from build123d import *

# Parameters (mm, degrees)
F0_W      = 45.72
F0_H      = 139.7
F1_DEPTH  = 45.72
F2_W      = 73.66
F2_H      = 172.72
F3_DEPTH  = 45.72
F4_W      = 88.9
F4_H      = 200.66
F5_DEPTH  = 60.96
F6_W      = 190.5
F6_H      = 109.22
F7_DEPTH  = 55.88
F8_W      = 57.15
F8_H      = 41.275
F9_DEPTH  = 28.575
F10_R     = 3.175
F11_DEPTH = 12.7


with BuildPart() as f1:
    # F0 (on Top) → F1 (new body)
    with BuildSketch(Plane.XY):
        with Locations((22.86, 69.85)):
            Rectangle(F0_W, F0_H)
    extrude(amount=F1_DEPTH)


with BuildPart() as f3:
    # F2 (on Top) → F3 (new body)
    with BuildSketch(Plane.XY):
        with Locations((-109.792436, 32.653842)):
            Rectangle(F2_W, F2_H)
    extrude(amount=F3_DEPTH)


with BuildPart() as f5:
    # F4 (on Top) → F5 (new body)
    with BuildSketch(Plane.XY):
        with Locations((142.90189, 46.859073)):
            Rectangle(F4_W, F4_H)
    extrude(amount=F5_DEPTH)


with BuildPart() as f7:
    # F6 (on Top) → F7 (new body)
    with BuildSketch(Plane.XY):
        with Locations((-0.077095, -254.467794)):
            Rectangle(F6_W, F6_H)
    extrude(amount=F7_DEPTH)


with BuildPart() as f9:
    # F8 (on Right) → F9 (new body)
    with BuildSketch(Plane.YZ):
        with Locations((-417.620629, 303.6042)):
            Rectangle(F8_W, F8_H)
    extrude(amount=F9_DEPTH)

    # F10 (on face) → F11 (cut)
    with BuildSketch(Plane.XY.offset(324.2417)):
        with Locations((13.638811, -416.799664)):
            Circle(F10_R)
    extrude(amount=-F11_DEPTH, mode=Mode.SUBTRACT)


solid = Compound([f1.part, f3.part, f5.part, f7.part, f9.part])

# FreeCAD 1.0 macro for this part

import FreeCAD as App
import Part
import Sketcher

V = App.Vector
Q = App.Units.Quantity


def add_polygon(sketch, points):
    """Adds a closed chain of lines whose ends are joined by coincident constraints."""
    first, n = sketch.GeometryCount, len(points)
    for a, b in zip(points, points[1:] + points[:1]):
        sketch.addGeometry(Part.LineSegment(App.Vector(*a, 0), App.Vector(*b, 0)), False)
    for i in range(n):
        sketch.addConstraint(Sketcher.Constraint("Coincident", first + i, 2, first + (i + 1) % n, 1))

doc = App.newDocument("Part")
body = doc.addObject("PartDesign::Body", "Body")

# Sketch on XY plane
sketch1 = body.newObject("Sketcher::SketchObject", "Sketch")
sketch1.AttachmentSupport = (doc.getObject("XY_Plane"), [""])
sketch1.MapMode = "FlatFace"
add_polygon(sketch1, [(0, 140), (0, 0), (46, 0), (46, 140)])  # lines 0-3
sketch1.addConstraint([
    Sketcher.Constraint("Vertical", 0),
    Sketcher.Constraint("Horizontal", 1),
    Sketcher.Constraint("Vertical", 2),
    Sketcher.Constraint("Horizontal", 3),
    Sketcher.Constraint("Coincident", 0, 2, -1, 1),
    Sketcher.Constraint("DistanceX", 1, 1, 1, 2, Q("1.8 in")),
    Sketcher.Constraint("DistanceY", 0, 2, 0, 1, Q("5.5 in")),
])
pad1 = body.newObject("PartDesign::Pad", "Pad")
pad1.Profile = sketch1
pad1.Length = Q("1.8 in")
body2 = doc.addObject("PartDesign::Body", "Body001")

# Sketch on XY plane
sketch2 = body2.newObject("Sketcher::SketchObject", "Sketch001")
sketch2.AttachmentSupport = (doc.getObject("XY_Plane001"), [""])
sketch2.MapMode = "FlatFace"
add_polygon(sketch2, [(-147, 119), (-147, -54), (-73, -54), (-73, 119)])  # lines 0-3
sketch2.addConstraint([
    Sketcher.Constraint("Vertical", 0),
    Sketcher.Constraint("Horizontal", 1),
    Sketcher.Constraint("Vertical", 2),
    Sketcher.Constraint("Horizontal", 3),
    Sketcher.Constraint("DistanceX", 1, 1, 1, 2, Q("2.9 in")),
    Sketcher.Constraint("DistanceY", 0, 2, 0, 1, Q("6.8 in")),
    Sketcher.Constraint("DistanceY", 0, 2, -1, 1, Q("53.706158 mm")),
    Sketcher.Constraint("DistanceX", 0, 2, -1, 1, Q("146.622436 mm")),
])
pad2 = body2.newObject("PartDesign::Pad", "Pad001")
pad2.Profile = sketch2
pad2.Length = Q("1.8 in")
body3 = doc.addObject("PartDesign::Body", "Body002")

# Sketch on XY plane
sketch3 = body3.newObject("Sketcher::SketchObject", "Sketch002")
sketch3.AttachmentSupport = (doc.getObject("XY_Plane002"), [""])
sketch3.MapMode = "FlatFace"
add_polygon(sketch3, [(98, 147), (98, -53), (187, -53), (187, 147)])  # lines 0-3
sketch3.addConstraint([
    Sketcher.Constraint("Vertical", 0),
    Sketcher.Constraint("Horizontal", 1),
    Sketcher.Constraint("Vertical", 2),
    Sketcher.Constraint("Horizontal", 3),
    Sketcher.Constraint("DistanceX", 1, 1, 1, 2, Q("3.5 in")),
    Sketcher.Constraint("DistanceY", 0, 2, 0, 1, Q("7.9 in")),
    Sketcher.Constraint("DistanceX", -1, 1, 0, 2, Q("98.45189 mm")),
    Sketcher.Constraint("DistanceY", 0, 2, -1, 1, Q("53.470927 mm")),
])
pad3 = body3.newObject("PartDesign::Pad", "Pad002")
pad3.Profile = sketch3
pad3.Length = Q("2.4 in")
body4 = doc.addObject("PartDesign::Body", "Body003")

# Sketch on XY plane
sketch4 = body4.newObject("Sketcher::SketchObject", "Sketch003")
sketch4.AttachmentSupport = (doc.getObject("XY_Plane003"), [""])
sketch4.MapMode = "FlatFace"
add_polygon(sketch4, [(-95, -200), (-95, -309), (95, -309), (95, -200)])  # lines 0-3
sketch4.addConstraint([
    Sketcher.Constraint("Vertical", 0),
    Sketcher.Constraint("Horizontal", 1),
    Sketcher.Constraint("Vertical", 2),
    Sketcher.Constraint("Horizontal", 3),
    Sketcher.Constraint("DistanceX", 1, 1, 1, 2, Q("7.5 in")),
    Sketcher.Constraint("DistanceY", 0, 2, 0, 1, Q("4.3 in")),
    Sketcher.Constraint("DistanceX", 0, 2, -1, 1, Q("95.327095 mm")),
    Sketcher.Constraint("DistanceY", 0, 2, -1, 1, Q("309.077794 mm")),
])
pad4 = body4.newObject("PartDesign::Pad", "Pad003")
pad4.Profile = sketch4
pad4.Length = Q("2.2 in")
body5 = doc.addObject("PartDesign::Body", "Body004")

# Sketch on YZ plane
sketch5 = body5.newObject("Sketcher::SketchObject", "Sketch004")
sketch5.AttachmentSupport = (doc.getObject("YZ_Plane004"), [""])
sketch5.MapMode = "FlatFace"
add_polygon(sketch5, [(-446, 324), (-446, 283), (-389, 283), (-389, 324)])  # lines 0-3
sketch5.addConstraint([
    Sketcher.Constraint("Vertical", 0),
    Sketcher.Constraint("Horizontal", 1),
    Sketcher.Constraint("Vertical", 2),
    Sketcher.Constraint("Horizontal", 3),
    Sketcher.Constraint("DistanceX", 1, 1, 1, 2, Q("2.25 in")),
    Sketcher.Constraint("DistanceY", 0, 2, 0, 1, Q("1.625 in")),
    Sketcher.Constraint("DistanceY", -1, 1, 0, 2, Q("282.9667 mm")),
    Sketcher.Constraint("DistanceX", 0, 2, -1, 1, Q("446.195629 mm")),
])
pad5 = body5.newObject("PartDesign::Pad", "Pad004")
pad5.Profile = sketch5
pad5.Length = Q("1.125 in")

# Sketch on XY plane
sketch6 = body5.newObject("Sketcher::SketchObject", "Sketch005")
sketch6.AttachmentSupport = (doc.getObject("XY_Plane004"), [""])
sketch6.MapMode = "FlatFace"
sketch6.AttachmentOffset = App.Placement(V(0, 0, 324.2417), App.Rotation())
sketch6.addGeometry(Part.Circle(V(13.6, -416.8, 0), V(0, 0, 1), 3.2), False)
sketch6.addConstraint([
    Sketcher.Constraint("Diameter", 0, Q("0.25 in")),
    Sketcher.Constraint("DistanceX", -1, 1, 0, 3, Q("13.638811 mm")),
    Sketcher.Constraint("DistanceY", 0, 3, -1, 1, Q("416.799664 mm")),
])
pocket1 = body5.newObject("PartDesign::Pocket", "Pocket")
pocket1.Profile = sketch6
pocket1.Length = Q("0.5 in")

doc.recompute()
